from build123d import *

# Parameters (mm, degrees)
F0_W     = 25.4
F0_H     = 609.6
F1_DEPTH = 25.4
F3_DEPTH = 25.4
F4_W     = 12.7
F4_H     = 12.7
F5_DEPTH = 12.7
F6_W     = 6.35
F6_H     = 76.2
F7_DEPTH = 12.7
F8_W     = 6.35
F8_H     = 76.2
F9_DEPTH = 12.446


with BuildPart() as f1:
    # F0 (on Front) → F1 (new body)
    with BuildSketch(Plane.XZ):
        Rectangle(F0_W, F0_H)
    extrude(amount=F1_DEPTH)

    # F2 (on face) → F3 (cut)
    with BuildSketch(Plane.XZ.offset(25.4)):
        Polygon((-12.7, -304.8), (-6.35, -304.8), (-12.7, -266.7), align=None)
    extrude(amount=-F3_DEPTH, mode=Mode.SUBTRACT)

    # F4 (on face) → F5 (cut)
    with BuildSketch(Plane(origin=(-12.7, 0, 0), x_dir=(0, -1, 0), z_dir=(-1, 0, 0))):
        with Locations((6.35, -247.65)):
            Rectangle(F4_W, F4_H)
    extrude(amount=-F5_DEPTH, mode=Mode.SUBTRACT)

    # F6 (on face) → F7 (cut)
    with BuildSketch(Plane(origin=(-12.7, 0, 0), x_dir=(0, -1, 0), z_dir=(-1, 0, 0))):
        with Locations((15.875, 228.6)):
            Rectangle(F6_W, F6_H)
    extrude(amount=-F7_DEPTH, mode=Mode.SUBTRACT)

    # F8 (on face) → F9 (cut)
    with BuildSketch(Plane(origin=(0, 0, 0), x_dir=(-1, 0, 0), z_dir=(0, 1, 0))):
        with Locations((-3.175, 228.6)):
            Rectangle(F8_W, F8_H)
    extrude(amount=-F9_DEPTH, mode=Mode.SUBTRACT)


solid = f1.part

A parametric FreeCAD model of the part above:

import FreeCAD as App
import Part
import Sketcher
Q = App.Units.Quantity

doc = App.newDocument("Part")
body = doc.addObject("PartDesign::Body", "Body")

sketch1 = body.newObject("Sketcher::SketchObject", "Sketch")
sketch1.AttachmentSupport = (doc.getObject("XZ_Plane"), [""])
sketch1.MapMode = "FlatFace"
sketch1.addGeometry([
    Part.LineSegment(App.Vector(-13, 305, 0), App.Vector(-13, -305, 0)),
    Part.LineSegment(App.Vector(-13, -305, 0), App.Vector(13, -305, 0)),
    Part.LineSegment(App.Vector(13, -305, 0), App.Vector(13, 305, 0)),
    Part.LineSegment(App.Vector(13, 305, 0), App.Vector(-13, 305, 0)),
], False)
sketch1.addConstraint([
    Sketcher.Constraint("Coincident", 0, 2, 1, 1),
    Sketcher.Constraint("Coincident", 1, 2, 2, 1),
    Sketcher.Constraint("Coincident", 2, 2, 3, 1),
    Sketcher.Constraint("Coincident", 3, 2, 0, 1),
    Sketcher.Constraint("Vertical", 0),
    Sketcher.Constraint("Horizontal", 1),
    Sketcher.Constraint("Vertical", 2),
    Sketcher.Constraint("Horizontal", 3),
    Sketcher.Constraint("Symmetric", 0, 2, 2, 2, -1, 1),
    Sketcher.Constraint("DistanceX", 1, 1, 1, 2, Q("1 in")),
    Sketcher.Constraint("DistanceY", 0, 2, 0, 1, Q("24 in")),
])
pad1 = body.newObject("PartDesign::Pad", "Pad")
pad1.Profile = sketch1
pad1.Length = Q("1 in")

sketch2 = body.newObject("Sketcher::SketchObject", "Sketch001")
sketch2.AttachmentSupport = (doc.getObject("XZ_Plane"), [""])
sketch2.MapMode = "FlatFace"
sketch2.AttachmentOffset = App.Placement(App.Vector(0, 0, 1 * 25.4), App.Rotation())
sketch2.addGeometry([
    Part.LineSegment(App.Vector(-13, -305, 0), App.Vector(-6, -305, 0)),
    Part.LineSegment(App.Vector(-6, -305, 0), App.Vector(-13, -267, 0)),
    Part.LineSegment(App.Vector(-13, -267, 0), App.Vector(-13, -305, 0)),
], False)
sketch2.addConstraint([
    Sketcher.Constraint("Coincident", 0, 2, 1, 1),
    Sketcher.Constraint("Coincident", 1, 2, 2, 1),
    Sketcher.Constraint("Coincident", 2, 2, 0, 1),
    Sketcher.Constraint("Horizontal", 0),
    Sketcher.Constraint("Vertical", 2),
    Sketcher.Constraint("DistanceY", 2, 2, 2, 1, Q("1.5 in")),
    Sketcher.Constraint("DistanceY", 0, 2, -1, 1, Q("12 in")),
    Sketcher.Constraint("DistanceX", 0, 1, 0, 2, Q("0.25 in")),
    Sketcher.Constraint("DistanceX", 1, 2, -1, 1, Q("0.5 in")),
])
pocket1 = body.newObject("PartDesign::Pocket", "Pocket")
pocket1.Profile = sketch2
pocket1.Length = Q("1 in")

sketch3 = body.newObject("Sketcher::SketchObject", "Sketch002")
sketch3.AttachmentSupport = (doc.getObject("YZ_Plane"), [""])
sketch3.MapMode = "FlatFace"
sketch3.AttachmentOffset = App.Placement(App.Vector(0, 0, -0.5 * 25.4), App.Rotation())
sketch3.addGeometry([
    Part.LineSegment(App.Vector(0, -241, 0), App.Vector(0, -254, 0)),
    Part.LineSegment(App.Vector(0, -254, 0), App.Vector(-13, -254, 0)),
    Part.LineSegment(App.Vector(-13, -254, 0), App.Vector(-13, -241, 0)),
    Part.LineSegment(App.Vector(-13, -241, 0), App.Vector(0, -241, 0)),
], False)
sketch3.addConstraint([
    Sketcher.Constraint("Coincident", 0, 2, 1, 1),
    Sketcher.Constraint("Coincident", 1, 2, 2, 1),
    Sketcher.Constraint("Coincident", 2, 2, 3, 1),
    Sketcher.Constraint("Coincident", 3, 2, 0, 1),
    Sketcher.Constraint("Vertical", 0),
    Sketcher.Constraint("Horizontal", 1),
    Sketcher.Constraint("Vertical", 2),
    Sketcher.Constraint("Horizontal", 3),
    Sketcher.Constraint("PointOnObject", 0, 2, -2),
    Sketcher.Constraint("Equal", 3, 0),
    Sketcher.Constraint("DistanceX", 1, 2, 1, 1, Q("0.5 in")),
    Sketcher.Constraint("DistanceY", 0, 2, -1, 1, Q("10 in")),
])
pocket2 = body.newObject("PartDesign::Pocket", "Pocket001")
pocket2.Profile = sketch3
pocket2.Length = Q("0.5 in")
pocket2.Reversed = True

sketch4 = body.newObject("Sketcher::SketchObject", "Sketch003")
sketch4.AttachmentSupport = (doc.getObject("YZ_Plane"), [""])
sketch4.MapMode = "FlatFace"
sketch4.AttachmentOffset = App.Placement(App.Vector(0, 0, -0.5 * 25.4), App.Rotation())
sketch4.addGeometry([
    Part.LineSegment(App.Vector(-13, 267, 0), App.Vector(-13, 190, 0)),
    Part.LineSegment(App.Vector(-13, 190, 0), App.Vector(-19, 190, 0)),
    Part.LineSegment(App.Vector(-19, 190, 0), App.Vector(-19, 267, 0)),
    Part.LineSegment(App.Vector(-19, 267, 0), App.Vector(-13, 267, 0)),
], False)
sketch4.addConstraint([
    Sketcher.Constraint("Coincident", 0, 2, 1, 1),
    Sketcher.Constraint("Coincident", 1, 2, 2, 1),
    Sketcher.Constraint("Coincident", 2, 2, 3, 1),
    Sketcher.Constraint("Coincident", 3, 2, 0, 1),
    Sketcher.Constraint("Vertical", 0),
    Sketcher.Constraint("Horizontal", 1),
    Sketcher.Constraint("Vertical", 2),
    Sketcher.Constraint("Horizontal", 3),
    Sketcher.Constraint("DistanceY", 0, 2, 0, 1, Q("3 in")),
    Sketcher.Constraint("DistanceX", 1, 2, 1, 1, Q("0.25 in")),
    Sketcher.Constraint("DistanceX", 0, 2, -1, 1, Q("0.5 in")),
    Sketcher.Constraint("DistanceY", -1, 1, 0, 2, Q("7.5 in")),
])
pocket3 = body.newObject("PartDesign::Pocket", "Pocket002")
pocket3.Profile = sketch4
pocket3.Length = Q("0.5 in")
pocket3.Reversed = True

sketch5 = body.newObject("Sketcher::SketchObject", "Sketch004")
sketch5.AttachmentSupport = (doc.getObject("XZ_Plane"), [""])
sketch5.MapMode = "FlatFace"
sketch5.addGeometry([
    Part.LineSegment(App.Vector(6, 267, 0), App.Vector(6, 190, 0)),
    Part.LineSegment(App.Vector(6, 190, 0), App.Vector(0, 190, 0)),
    Part.LineSegment(App.Vector(0, 190, 0), App.Vector(0, 267, 0)),
    Part.LineSegment(App.Vector(0, 267, 0), App.Vector(6, 267, 0)),
], False)
sketch5.addConstraint([
    Sketcher.Constraint("Coincident", 0, 2, 1, 1),
    Sketcher.Constraint("Coincident", 1, 2, 2, 1),
    Sketcher.Constraint("Coincident", 2, 2, 3, 1),
    Sketcher.Constraint("Coincident", 3, 2, 0, 1),
    Sketcher.Constraint("Vertical", 0),
    Sketcher.Constraint("Horizontal", 1),
    Sketcher.Constraint("Vertical", 2),
    Sketcher.Constraint("Horizontal", 3),
    Sketcher.Constraint("PointOnObject", 1, 2, -2),
    Sketcher.Constraint("DistanceY", 0, 2, 0, 1, Q("3 in")),
    Sketcher.Constraint("DistanceX", 1, 2, 1, 1, Q("0.25 in")),
    Sketcher.Constraint("DistanceY", -1, 1, 0, 2, Q("7.5 in")),
])
pocket4 = body.newObject("PartDesign::Pocket", "Pocket003")
pocket4.Profile = sketch5
pocket4.Length = Q("0.49 in")
pocket4.Reversed = True

doc.recompute()
